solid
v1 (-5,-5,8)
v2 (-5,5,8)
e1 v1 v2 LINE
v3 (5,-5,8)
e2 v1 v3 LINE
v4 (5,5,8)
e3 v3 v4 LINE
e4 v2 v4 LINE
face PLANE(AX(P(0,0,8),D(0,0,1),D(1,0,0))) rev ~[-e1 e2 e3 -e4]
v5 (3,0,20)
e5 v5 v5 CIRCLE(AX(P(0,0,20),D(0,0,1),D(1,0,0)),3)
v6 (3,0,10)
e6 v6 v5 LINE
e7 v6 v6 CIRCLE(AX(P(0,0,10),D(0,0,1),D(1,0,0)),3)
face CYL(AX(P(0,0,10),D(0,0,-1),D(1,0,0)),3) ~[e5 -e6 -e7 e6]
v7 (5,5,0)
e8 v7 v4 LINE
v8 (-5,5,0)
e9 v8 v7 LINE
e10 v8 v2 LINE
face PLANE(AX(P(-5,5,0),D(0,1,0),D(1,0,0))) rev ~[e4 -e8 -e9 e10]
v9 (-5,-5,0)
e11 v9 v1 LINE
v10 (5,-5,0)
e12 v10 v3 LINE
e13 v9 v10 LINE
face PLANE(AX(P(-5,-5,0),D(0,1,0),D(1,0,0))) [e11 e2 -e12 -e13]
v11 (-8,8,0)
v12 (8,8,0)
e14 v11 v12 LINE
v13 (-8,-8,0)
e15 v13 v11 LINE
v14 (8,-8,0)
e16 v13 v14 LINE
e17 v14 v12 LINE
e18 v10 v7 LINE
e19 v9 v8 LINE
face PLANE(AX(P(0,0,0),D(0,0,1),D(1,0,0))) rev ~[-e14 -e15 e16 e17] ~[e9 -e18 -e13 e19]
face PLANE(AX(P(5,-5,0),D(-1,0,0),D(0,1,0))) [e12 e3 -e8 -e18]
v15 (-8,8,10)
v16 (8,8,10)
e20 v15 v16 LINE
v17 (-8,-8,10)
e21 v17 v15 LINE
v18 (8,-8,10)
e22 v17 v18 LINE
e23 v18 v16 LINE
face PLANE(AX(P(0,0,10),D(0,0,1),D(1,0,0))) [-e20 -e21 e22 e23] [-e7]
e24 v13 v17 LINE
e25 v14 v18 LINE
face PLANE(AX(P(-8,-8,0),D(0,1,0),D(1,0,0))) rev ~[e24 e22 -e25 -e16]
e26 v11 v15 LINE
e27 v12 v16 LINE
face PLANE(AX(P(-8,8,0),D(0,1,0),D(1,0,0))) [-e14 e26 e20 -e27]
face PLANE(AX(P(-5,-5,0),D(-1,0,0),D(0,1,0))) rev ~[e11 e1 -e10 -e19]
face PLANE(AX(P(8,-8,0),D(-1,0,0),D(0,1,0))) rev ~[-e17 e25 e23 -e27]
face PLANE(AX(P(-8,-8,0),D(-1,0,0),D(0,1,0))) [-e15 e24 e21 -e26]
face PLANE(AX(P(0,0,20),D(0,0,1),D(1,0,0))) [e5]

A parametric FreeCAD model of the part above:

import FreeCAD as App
import Part
import Sketcher
from FreeCAD import Vector

doc = App.newDocument("Part")
body = doc.addObject("PartDesign::Body", "Body")

# Sketch on XY plane
sketch1 = body.newObject("Sketcher::SketchObject", "Sketch")
sketch1.AttachmentSupport = (doc.getObject("XY_Plane"), [""])
sketch1.MapMode = "FlatFace"
sketch1.addGeometry(Part.LineSegment(Vector(-5, 5, 0), Vector(-5, -5, 0)), False)
sketch1.addGeometry(Part.LineSegment(Vector(-5, -5, 0), Vector(5, -5, 0)), False)
sketch1.addGeometry(Part.LineSegment(Vector(5, -5, 0), Vector(5, 5, 0)), False)
sketch1.addGeometry(Part.LineSegment(Vector(5, 5, 0), Vector(-5, 5, 0)), False)
sketch1.addConstraint(Sketcher.Constraint("Coincident", 0, 2, 1, 1))
sketch1.addConstraint(Sketcher.Constraint("Coincident", 1, 2, 2, 1))
sketch1.addConstraint(Sketcher.Constraint("Coincident", 2, 2, 3, 1))
sketch1.addConstraint(Sketcher.Constraint("Coincident", 3, 2, 0, 1))
sketch1.addConstraint(Sketcher.Constraint("Vertical", 0))
sketch1.addConstraint(Sketcher.Constraint("Horizontal", 1))
sketch1.addConstraint(Sketcher.Constraint("Vertical", 2))
sketch1.addConstraint(Sketcher.Constraint("Horizontal", 3))
sketch1.addConstraint(Sketcher.Constraint("Symmetric", 0, 2, 2, 2, -1, 1))
sketch1.addConstraint(Sketcher.Constraint("Equal", 3, 0))
sketch1.addConstraint(Sketcher.Constraint("DistanceX", 1, 1, 1, 2, 10.0))
pad1 = body.newObject("PartDesign::Pad", "Pad")
pad1.Profile = sketch1
pad1.Length = 8
body2 = doc.addObject("PartDesign::Body", "Body001")

# Sketch on XY plane
sketch2 = body2.newObject("Sketcher::SketchObject", "Sketch001")
sketch2.AttachmentSupport = (doc.getObject("XY_Plane001"), [""])
sketch2.MapMode = "FlatFace"
sketch2.AttachmentOffset = App.Placement(Vector(0, 0, 10), App.Rotation())
sketch2.addGeometry(Part.Circle(Vector(0, 0, 0), Vector(0, 0, 1), 3), False)
sketch2.addConstraint(Sketcher.Constraint("Coincident", 0, 3, -1, 1))
sketch2.addConstraint(Sketcher.Constraint("Diameter", 0, 6.0))
pad2 = body2.newObject("PartDesign::Pad", "Pad001")
pad2.Profile = sketch2
pad2.Length = 10
body3 = doc.addObject("PartDesign::Body", "Body002")

# Sketch on XY plane
sketch3 = body3.newObject("Sketcher::SketchObject", "Sketch002")
sketch3.AttachmentSupport = (doc.getObject("XY_Plane002"), [""])
sketch3.MapMode = "FlatFace"
sketch3.addGeometry(Part.LineSegment(Vector(-8, 8, 0), Vector(-8, -8, 0)), False)
sketch3.addGeometry(Part.LineSegment(Vector(-8, -8, 0), Vector(8, -8, 0)), False)
sketch3.addGeometry(Part.LineSegment(Vector(8, -8, 0), Vector(8, 8, 0)), False)
sketch3.addGeometry(Part.LineSegment(Vector(8, 8, 0), Vector(-8, 8, 0)), False)
sketch3.addConstraint(Sketcher.Constraint("Coincident", 0, 2, 1, 1))
sketch3.addConstraint(Sketcher.Constraint("Coincident", 1, 2, 2, 1))
sketch3.addConstraint(Sketcher.Constraint("Coincident", 2, 2, 3, 1))
sketch3.addConstraint(Sketcher.Constraint("Coincident", 3, 2, 0, 1))
sketch3.addConstraint(Sketcher.Constraint("Vertical", 0))
sketch3.addConstraint(Sketcher.Constraint("Horizontal", 1))
sketch3.addConstraint(Sketcher.Constraint("Vertical", 2))
sketch3.addConstraint(Sketcher.Constraint("Horizontal", 3))
sketch3.addConstraint(Sketcher.Constraint("Symmetric", 0, 2, 2, 2, -1, 1))
sketch3.addConstraint(Sketcher.Constraint("Equal", 3, 0))
sketch3.addConstraint(Sketcher.Constraint("DistanceX", 1, 1, 1, 2, 16.0))
pad3 = body3.newObject("PartDesign::Pad", "Pad002")
pad3.Profile = sketch3
pad3.Length = 10
doc.recompute()

boolean = body3.newObject("PartDesign::Boolean", "Boolean")
boolean.Type = "Fuse"
boolean.addObjects([body2])
doc.recompute()

boolean2 = body3.newObject("PartDesign::Boolean", "Boolean001")
boolean2.Type = "Cut"
boolean2.addObjects([body])

doc.recompute()
